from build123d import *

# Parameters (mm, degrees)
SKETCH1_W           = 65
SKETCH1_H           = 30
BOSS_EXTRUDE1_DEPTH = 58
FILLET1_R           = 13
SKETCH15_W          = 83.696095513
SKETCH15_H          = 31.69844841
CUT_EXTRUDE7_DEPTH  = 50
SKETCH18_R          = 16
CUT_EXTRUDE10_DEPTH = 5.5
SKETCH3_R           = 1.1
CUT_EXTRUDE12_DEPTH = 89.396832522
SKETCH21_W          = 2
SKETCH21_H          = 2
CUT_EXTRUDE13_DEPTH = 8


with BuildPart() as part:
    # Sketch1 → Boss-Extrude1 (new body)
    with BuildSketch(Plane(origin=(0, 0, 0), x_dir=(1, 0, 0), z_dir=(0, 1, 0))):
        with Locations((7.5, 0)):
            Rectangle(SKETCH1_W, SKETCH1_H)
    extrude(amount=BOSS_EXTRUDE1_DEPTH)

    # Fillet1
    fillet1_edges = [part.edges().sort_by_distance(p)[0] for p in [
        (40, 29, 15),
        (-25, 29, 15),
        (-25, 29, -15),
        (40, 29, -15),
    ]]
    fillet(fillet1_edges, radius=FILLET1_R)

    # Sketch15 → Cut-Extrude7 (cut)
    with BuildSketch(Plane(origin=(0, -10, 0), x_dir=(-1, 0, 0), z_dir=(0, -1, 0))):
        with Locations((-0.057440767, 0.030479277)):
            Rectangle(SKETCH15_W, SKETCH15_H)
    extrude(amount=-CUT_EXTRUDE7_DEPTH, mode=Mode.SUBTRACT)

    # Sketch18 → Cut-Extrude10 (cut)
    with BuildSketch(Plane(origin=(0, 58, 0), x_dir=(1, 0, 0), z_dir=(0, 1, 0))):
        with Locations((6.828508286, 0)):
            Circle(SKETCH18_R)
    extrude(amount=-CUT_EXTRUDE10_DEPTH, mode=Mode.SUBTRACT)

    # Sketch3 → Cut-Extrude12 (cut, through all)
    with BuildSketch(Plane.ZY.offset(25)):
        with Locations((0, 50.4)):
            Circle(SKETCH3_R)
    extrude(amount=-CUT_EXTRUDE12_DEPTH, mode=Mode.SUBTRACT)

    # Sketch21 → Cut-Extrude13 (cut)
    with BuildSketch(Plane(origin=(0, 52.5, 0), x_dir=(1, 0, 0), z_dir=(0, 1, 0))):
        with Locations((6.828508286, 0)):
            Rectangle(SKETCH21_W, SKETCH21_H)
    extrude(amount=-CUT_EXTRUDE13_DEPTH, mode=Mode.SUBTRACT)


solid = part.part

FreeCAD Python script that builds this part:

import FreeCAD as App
import Part
import Sketcher
Q = App.Units.Quantity


def edges_at(feature, points):
    """Names of the edges that pass closest to the given points."""
    edges = feature.Shape.Edges
    near = lambda p: min(range(len(edges)), key=lambda i: edges[i].distToShape(Part.Vertex(*p))[0])
    return sorted({f"Edge{near(p) + 1}" for p in points})

doc = App.newDocument("Part")
params = doc.addObject("Spreadsheet::Sheet", "Params")
for row, (alias, value) in enumerate([
    ("sketch1_width", "65 mm"),
    ("sketch1_height", "30 mm"),
    ("pad1_length", "58 mm"),
    ("fillet_radius", "13 mm"),
    ("pocket1_length", "50 mm"),
    ("sketch3_diameter", "32 mm"),
    ("pocket2_length", "5.5 mm"),
    ("sketch4_diameter", "2.2 mm"),
    ("sketch5_width", "2 mm"),
    ("pocket4_length", "8 mm"),
], start=1):
    params.set(f"A{row}", alias)
    params.set(f"B{row}", "=" + value)
    params.setAlias(f"B{row}", alias)

body = doc.addObject("PartDesign::Body", "Body")

# Sketch on XZ plane
sketch1 = body.newObject("Sketcher::SketchObject", "Sketch")
sketch1.AttachmentSupport = (doc.getObject("XZ_Plane"), [""])
sketch1.MapMode = "FlatFace"
sketch1.addGeometry(Part.LineSegment(App.Vector(-25, -15, 0), App.Vector(-25, 15, 0)), False)
sketch1.addGeometry(Part.LineSegment(App.Vector(-25, 15, 0), App.Vector(40, 15, 0)), False)
sketch1.addGeometry(Part.LineSegment(App.Vector(40, 15, 0), App.Vector(40, -15, 0)), False)
sketch1.addGeometry(Part.LineSegment(App.Vector(40, -15, 0), App.Vector(-25, -15, 0)), False)
sketch1.addConstraint(Sketcher.Constraint("Coincident", 0, 2, 1, 1))
sketch1.addConstraint(Sketcher.Constraint("Coincident", 1, 2, 2, 1))
sketch1.addConstraint(Sketcher.Constraint("Coincident", 2, 2, 3, 1))
sketch1.addConstraint(Sketcher.Constraint("Coincident", 3, 2, 0, 1))
sketch1.addConstraint(Sketcher.Constraint("Vertical", 0))
sketch1.addConstraint(Sketcher.Constraint("Horizontal", 1))
sketch1.addConstraint(Sketcher.Constraint("Vertical", 2))
sketch1.addConstraint(Sketcher.Constraint("Horizontal", 3))
sketch1.addConstraint(Sketcher.Constraint("DistanceX", 1, 1, 1, 2, Q("65 mm")))
sketch1.addConstraint(Sketcher.Constraint("DistanceY", 0, 1, 0, 2, Q("30 mm")))
sketch1.addConstraint(Sketcher.Constraint("DistanceX", 0, 2, -1, 1, Q("25 mm")))
sketch1.addConstraint(Sketcher.Constraint("DistanceY", -1, 1, 0, 2, Q("15 mm")))
sketch1.setExpression("Constraints[8]", "Params.sketch1_width")
sketch1.setExpression("Constraints[9]", "Params.sketch1_height")
pad1 = body.newObject("PartDesign::Pad", "Pad")
pad1.Profile = sketch1
pad1.setExpression("Length", "Params.pad1_length")
pad1.Reversed = True
doc.recompute()

fillet = body.newObject("PartDesign::Fillet", "Fillet")
fillet.Base = (pad1, edges_at(pad1, [
    (40, 29, 15),
    (-25, 29, 15),
    (-25, 29, -15),
    (40, 29, -15),
]))
fillet.setExpression("Radius", "Params.fillet_radius")

# Sketch on XZ plane
sketch2 = body.newObject("Sketcher::SketchObject", "Sketch001")
sketch2.AttachmentSupport = (doc.getObject("XZ_Plane"), [""])
sketch2.MapMode = "FlatFace"
sketch2.AttachmentOffset = App.Placement(App.Vector(0, 0, 10), App.Rotation())
sketch2.addGeometry(Part.LineSegment(App.Vector(42, -16, 0), App.Vector(42, 16, 0)), False)
sketch2.addGeometry(Part.LineSegment(App.Vector(42, 16, 0), App.Vector(-42, 16, 0)), False)
sketch2.addGeometry(Part.LineSegment(App.Vector(-42, 16, 0), App.Vector(-42, -16, 0)), False)
sketch2.addGeometry(Part.LineSegment(App.Vector(-42, -16, 0), App.Vector(42, -16, 0)), False)
sketch2.addConstraint(Sketcher.Constraint("Coincident", 0, 2, 1, 1))
sketch2.addConstraint(Sketcher.Constraint("Coincident", 1, 2, 2, 1))
sketch2.addConstraint(Sketcher.Constraint("Coincident", 2, 2, 3, 1))
sketch2.addConstraint(Sketcher.Constraint("Coincident", 3, 2, 0, 1))
sketch2.addConstraint(Sketcher.Constraint("Vertical", 0))
sketch2.addConstraint(Sketcher.Constraint("Horizontal", 1))
sketch2.addConstraint(Sketcher.Constraint("Vertical", 2))
sketch2.addConstraint(Sketcher.Constraint("Horizontal", 3))
sketch2.addConstraint(Sketcher.Constraint("DistanceY", 0, 1, 0, 2, Q("31.698448 mm")))
sketch2.addConstraint(Sketcher.Constraint("DistanceX", 1, 2, 1, 1, Q("83.696096 mm")))
sketch2.addConstraint(Sketcher.Constraint("DistanceX", -1, 1, 0, 2, Q("41.905489 mm")))
sketch2.addConstraint(Sketcher.Constraint("DistanceY", -1, 1, 0, 2, Q("15.818745 mm")))
pocket1 = body.newObject("PartDesign::Pocket", "Pocket")
pocket1.Profile = sketch2
pocket1.setExpression("Length", "Params.pocket1_length")

# Sketch on XZ plane
sketch3 = body.newObject("Sketcher::SketchObject", "Sketch002")
sketch3.AttachmentSupport = (doc.getObject("XZ_Plane"), [""])
sketch3.MapMode = "FlatFace"
sketch3.AttachmentOffset = App.Placement(App.Vector(0, 0, -58), App.Rotation())
sketch3.addGeometry(Part.Circle(App.Vector(7, 0, 0), App.Vector(0, 0, 1), 16), False)
sketch3.addConstraint(Sketcher.Constraint("PointOnObject", 0, 3, -1))
sketch3.addConstraint(Sketcher.Constraint("Diameter", 0, Q("32 mm")))
sketch3.addConstraint(Sketcher.Constraint("DistanceX", -1, 1, 0, 3, Q("6.828508 mm")))
sketch3.setExpression("Constraints[1]", "Params.sketch3_diameter")
pocket2 = body.newObject("PartDesign::Pocket", "Pocket001")
pocket2.Profile = sketch3
pocket2.setExpression("Length", "Params.pocket2_length")
pocket2.Reversed = True

# Sketch on YZ plane
sketch4 = body.newObject("Sketcher::SketchObject", "Sketch003")
sketch4.AttachmentSupport = (doc.getObject("YZ_Plane"), [""])
sketch4.MapMode = "FlatFace"
sketch4.AttachmentOffset = App.Placement(App.Vector(0, 0, -25), App.Rotation())
sketch4.addGeometry(Part.Circle(App.Vector(50.4, 0, 0), App.Vector(0, 0, 1), 1.1), False)
sketch4.addConstraint(Sketcher.Constraint("PointOnObject", 0, 3, -1))
sketch4.addConstraint(Sketcher.Constraint("Diameter", 0, Q("2.2 mm")))
sketch4.addConstraint(Sketcher.Constraint("DistanceX", -1, 1, 0, 3, Q("50.4 mm")))
sketch4.setExpression("Constraints[1]", "Params.sketch4_diameter")
pocket3 = body.newObject("PartDesign::Pocket", "Pocket002")
pocket3.Profile = sketch4
pocket3.Type = "ThroughAll"
pocket3.Reversed = True

# Sketch on XZ plane
sketch5 = body.newObject("Sketcher::SketchObject", "Sketch004")
sketch5.AttachmentSupport = (doc.getObject("XZ_Plane"), [""])
sketch5.MapMode = "FlatFace"
sketch5.AttachmentOffset = App.Placement(App.Vector(0, 0, -52.5), App.Rotation())
sketch5.addGeometry(Part.LineSegment(App.Vector(5.8, -1, 0), App.Vector(5.8, 1, 0)), False)
sketch5.addGeometry(Part.LineSegment(App.Vector(5.8, 1, 0), App.Vector(7.8, 1, 0)), False)
sketch5.addGeometry(Part.LineSegment(App.Vector(7.8, 1, 0), App.Vector(7.8, -1, 0)), False)
sketch5.addGeometry(Part.LineSegment(App.Vector(7.8, -1, 0), App.Vector(5.8, -1, 0)), False)
sketch5.addConstraint(Sketcher.Constraint("Coincident", 0, 2, 1, 1))
sketch5.addConstraint(Sketcher.Constraint("Coincident", 1, 2, 2, 1))
sketch5.addConstraint(Sketcher.Constraint("Coincident", 2, 2, 3, 1))
sketch5.addConstraint(Sketcher.Constraint("Coincident", 3, 2, 0, 1))
sketch5.addConstraint(Sketcher.Constraint("Vertical", 0))
sketch5.addConstraint(Sketcher.Constraint("Horizontal", 1))
sketch5.addConstraint(Sketcher.Constraint("Vertical", 2))
sketch5.addConstraint(Sketcher.Constraint("Horizontal", 3))
sketch5.addConstraint(Sketcher.Constraint("Equal", 3, 0))
sketch5.addConstraint(Sketcher.Constraint("DistanceX", 1, 1, 1, 2, Q("2 mm")))
sketch5.addConstraint(Sketcher.Constraint("DistanceY", -1, 1, 0, 2, Q("1 mm")))
sketch5.addConstraint(Sketcher.Constraint("DistanceX", -1, 1, 0, 2, Q("5.828508 mm")))
sketch5.setExpression("Constraints[9]", "Params.sketch5_width")
pocket4 = body.newObject("PartDesign::Pocket", "Pocket003")
pocket4.Profile = sketch5
pocket4.setExpression("Length", "Params.pocket4_length")
pocket4.Reversed = True

doc.recompute()
